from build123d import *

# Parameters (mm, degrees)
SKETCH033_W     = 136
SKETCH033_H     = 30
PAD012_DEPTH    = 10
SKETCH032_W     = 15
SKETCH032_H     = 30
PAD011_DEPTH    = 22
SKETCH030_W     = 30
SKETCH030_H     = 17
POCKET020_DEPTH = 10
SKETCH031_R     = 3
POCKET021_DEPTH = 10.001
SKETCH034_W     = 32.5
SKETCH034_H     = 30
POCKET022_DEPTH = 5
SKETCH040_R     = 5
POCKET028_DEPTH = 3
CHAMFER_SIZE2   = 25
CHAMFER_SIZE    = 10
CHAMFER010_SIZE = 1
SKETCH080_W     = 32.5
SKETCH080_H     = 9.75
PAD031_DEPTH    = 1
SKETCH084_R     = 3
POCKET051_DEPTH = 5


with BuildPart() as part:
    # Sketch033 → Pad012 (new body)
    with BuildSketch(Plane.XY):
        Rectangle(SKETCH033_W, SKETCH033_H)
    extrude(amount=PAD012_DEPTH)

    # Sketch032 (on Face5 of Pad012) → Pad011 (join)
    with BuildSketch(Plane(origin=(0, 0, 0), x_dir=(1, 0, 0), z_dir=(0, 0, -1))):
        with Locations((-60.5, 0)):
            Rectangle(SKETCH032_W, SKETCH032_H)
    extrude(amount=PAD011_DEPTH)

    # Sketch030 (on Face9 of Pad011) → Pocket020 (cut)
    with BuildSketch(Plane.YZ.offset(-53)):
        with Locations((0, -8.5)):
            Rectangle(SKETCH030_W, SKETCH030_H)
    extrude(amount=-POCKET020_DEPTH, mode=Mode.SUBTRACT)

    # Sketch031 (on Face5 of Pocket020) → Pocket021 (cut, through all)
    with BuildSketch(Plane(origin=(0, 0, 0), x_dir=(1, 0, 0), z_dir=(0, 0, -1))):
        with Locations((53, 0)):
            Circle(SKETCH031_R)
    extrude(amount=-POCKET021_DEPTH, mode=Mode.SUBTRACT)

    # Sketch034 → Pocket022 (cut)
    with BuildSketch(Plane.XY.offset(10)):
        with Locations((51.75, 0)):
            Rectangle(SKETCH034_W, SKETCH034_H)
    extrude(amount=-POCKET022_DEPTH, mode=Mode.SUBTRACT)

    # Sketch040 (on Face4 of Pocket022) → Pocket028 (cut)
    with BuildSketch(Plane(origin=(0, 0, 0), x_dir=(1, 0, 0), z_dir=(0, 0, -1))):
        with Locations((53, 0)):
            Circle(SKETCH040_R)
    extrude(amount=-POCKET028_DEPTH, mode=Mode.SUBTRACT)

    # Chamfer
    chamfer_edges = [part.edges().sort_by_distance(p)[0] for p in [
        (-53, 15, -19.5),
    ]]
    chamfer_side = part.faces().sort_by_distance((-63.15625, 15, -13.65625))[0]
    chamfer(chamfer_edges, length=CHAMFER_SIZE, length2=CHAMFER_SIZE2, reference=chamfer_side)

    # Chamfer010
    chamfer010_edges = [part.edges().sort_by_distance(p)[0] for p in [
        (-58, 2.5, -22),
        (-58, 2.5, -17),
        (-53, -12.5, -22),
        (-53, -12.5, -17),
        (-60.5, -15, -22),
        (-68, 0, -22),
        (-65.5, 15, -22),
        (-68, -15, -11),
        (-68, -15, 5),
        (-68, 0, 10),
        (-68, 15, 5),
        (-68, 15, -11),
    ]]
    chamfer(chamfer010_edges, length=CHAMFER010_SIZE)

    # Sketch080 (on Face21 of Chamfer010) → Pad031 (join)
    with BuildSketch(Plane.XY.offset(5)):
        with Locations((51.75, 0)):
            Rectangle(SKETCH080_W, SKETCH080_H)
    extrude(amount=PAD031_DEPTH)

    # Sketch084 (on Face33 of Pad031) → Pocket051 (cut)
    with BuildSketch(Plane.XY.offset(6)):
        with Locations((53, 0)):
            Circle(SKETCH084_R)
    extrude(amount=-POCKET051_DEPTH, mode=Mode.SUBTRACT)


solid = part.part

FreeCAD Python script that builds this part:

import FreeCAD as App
import Part
import Sketcher
from FreeCAD import Vector
Q = App.Units.Quantity


def edges_at(feature, points):
    """Names of the edges that pass closest to the given points."""
    edges = feature.Shape.Edges
    near = lambda p: min(range(len(edges)), key=lambda i: edges[i].distToShape(Part.Vertex(*p))[0])
    return sorted({f"Edge{near(p) + 1}" for p in points})

doc = App.newDocument("Part")
params = doc.addObject("Spreadsheet::Sheet", "Params")
for row, (alias, value) in enumerate([
    ("sketch1_width", "136 mm"),
    ("sketch1_height", "30 mm"),
    ("pad1_length", "10 mm"),
    ("sketch2_width", "15 mm"),
    ("sketch2_height", "30 mm"),
    ("pad2_length", "22 mm"),
    ("sketch3_width", "30 mm"),
    ("sketch3_height", "17 mm"),
    ("pocket1_length", "10 mm"),
    ("sketch4_diameter", "6 mm"),
    ("sketch5_height", "30 mm"),
    ("sketch5_width", "32.5 mm"),
    ("pocket3_length", "5 mm"),
    ("sketch6_diameter", "10 mm"),
    ("pocket4_length", "3 mm"),
    ("chamfer_size", "10 mm"),
    ("chamfer_size2", "25 mm"),
    ("chamfer2_size", "1 mm"),
    ("sketch7_width", "32.5 mm"),
    ("sketch7_height", "9.75 mm"),
    ("pad3_length", "1 mm"),
    ("sketch8_diameter", "6 mm"),
    ("pocket5_length", "5 mm"),
], start=1):
    params.set(f"A{row}", alias)
    params.set(f"B{row}", "=" + value)
    params.setAlias(f"B{row}", alias)

body = doc.addObject("PartDesign::Body", "Body")

# Sketch on XY plane
sketch1 = body.newObject("Sketcher::SketchObject", "Sketch")
sketch1.AttachmentSupport = (doc.getObject("XY_Plane"), [""])
sketch1.MapMode = "FlatFace"
sketch1.addGeometry([
    Part.LineSegment(Vector(-68, 15, 0), Vector(-68, -15, 0)),
    Part.LineSegment(Vector(-68, -15, 0), Vector(68, -15, 0)),
    Part.LineSegment(Vector(68, -15, 0), Vector(68, 15, 0)),
    Part.LineSegment(Vector(68, 15, 0), Vector(-68, 15, 0)),
], False)
sketch1.addConstraint([
    Sketcher.Constraint("Coincident", 0, 2, 1, 1),
    Sketcher.Constraint("Coincident", 1, 2, 2, 1),
    Sketcher.Constraint("Coincident", 2, 2, 3, 1),
    Sketcher.Constraint("Coincident", 3, 2, 0, 1),
    Sketcher.Constraint("Vertical", 0),
    Sketcher.Constraint("Horizontal", 1),
    Sketcher.Constraint("Vertical", 2),
    Sketcher.Constraint("Horizontal", 3),
    Sketcher.Constraint("Symmetric", 0, 2, 2, 2, -1, 1),
    Sketcher.Constraint("DistanceX", 1, 1, 1, 2, Q("136 mm")),
    Sketcher.Constraint("DistanceY", 0, 2, 0, 1, Q("30 mm")),
])
sketch1.setExpression("Constraints[9]", "Params.sketch1_width")
sketch1.setExpression("Constraints[10]", "Params.sketch1_height")
pad1 = body.newObject("PartDesign::Pad", "Pad")
pad1.Profile = sketch1
pad1.setExpression("Length", "Params.pad1_length")

# Sketch on XY plane
sketch2 = body.newObject("Sketcher::SketchObject", "Sketch001")
sketch2.AttachmentSupport = (doc.getObject("XY_Plane"), [""])
sketch2.MapMode = "FlatFace"
sketch2.addGeometry([
    Part.LineSegment(Vector(-68, -15, 0), Vector(-68, 15, 0)),
    Part.LineSegment(Vector(-68, 15, 0), Vector(-53, 15, 0)),
    Part.LineSegment(Vector(-53, 15, 0), Vector(-53, -15, 0)),
    Part.LineSegment(Vector(-53, -15, 0), Vector(-68, -15, 0)),
], False)
sketch2.addConstraint([
    Sketcher.Constraint("Coincident", 0, 2, 1, 1),
    Sketcher.Constraint("Coincident", 1, 2, 2, 1),
    Sketcher.Constraint("Coincident", 2, 2, 3, 1),
    Sketcher.Constraint("Coincident", 3, 2, 0, 1),
    Sketcher.Constraint("Vertical", 0),
    Sketcher.Constraint("Horizontal", 1),
    Sketcher.Constraint("Vertical", 2),
    Sketcher.Constraint("Horizontal", 3),
    Sketcher.Constraint("DistanceX", 1, 1, 1, 2, Q("15 mm")),
    Sketcher.Constraint("DistanceY", 0, 1, 0, 2, Q("30 mm")),
    Sketcher.Constraint("DistanceX", 0, 2, -1, 1, Q("68 mm")),
    Sketcher.Constraint("DistanceY", -1, 1, 0, 2, Q("15 mm")),
])
sketch2.setExpression("Constraints[8]", "Params.sketch2_width")
sketch2.setExpression("Constraints[9]", "Params.sketch2_height")
pad2 = body.newObject("PartDesign::Pad", "Pad001")
pad2.Profile = sketch2
pad2.setExpression("Length", "Params.pad2_length")
pad2.Reversed = True

# Sketch on YZ plane
sketch3 = body.newObject("Sketcher::SketchObject", "Sketch002")
sketch3.AttachmentSupport = (doc.getObject("YZ_Plane"), [""])
sketch3.MapMode = "FlatFace"
sketch3.AttachmentOffset = App.Placement(Vector(0, 0, -53), App.Rotation())
sketch3.addGeometry([
    Part.LineSegment(Vector(-15, 0, 0), Vector(-15, -17, 0)),
    Part.LineSegment(Vector(-15, -17, 0), Vector(15, -17, 0)),
    Part.LineSegment(Vector(15, -17, 0), Vector(15, 0, 0)),
    Part.LineSegment(Vector(15, 0, 0), Vector(-15, 0, 0)),
], False)
sketch3.addConstraint([
    Sketcher.Constraint("Coincident", 0, 2, 1, 1),
    Sketcher.Constraint("Coincident", 1, 2, 2, 1),
    Sketcher.Constraint("Coincident", 2, 2, 3, 1),
    Sketcher.Constraint("Coincident", 3, 2, 0, 1),
    Sketcher.Constraint("Vertical", 0),
    Sketcher.Constraint("Horizontal", 1),
    Sketcher.Constraint("Vertical", 2),
    Sketcher.Constraint("Horizontal", 3),
    Sketcher.Constraint("Symmetric", 2, 2, 3, 2, -1, 1),
    Sketcher.Constraint("DistanceX", 1, 1, 1, 2, Q("30 mm")),
    Sketcher.Constraint("DistanceY", 0, 2, 0, 1, Q("17 mm")),
])
sketch3.setExpression("Constraints[9]", "Params.sketch3_width")
sketch3.setExpression("Constraints[10]", "Params.sketch3_height")
pocket1 = body.newObject("PartDesign::Pocket", "Pocket")
pocket1.Profile = sketch3
pocket1.setExpression("Length", "Params.pocket1_length")

# Sketch on XY plane
sketch4 = body.newObject("Sketcher::SketchObject", "Sketch003")
sketch4.AttachmentSupport = (doc.getObject("XY_Plane"), [""])
sketch4.MapMode = "FlatFace"
sketch4.addGeometry(Part.Circle(Vector(53, 0, 0), Vector(0, 0, 1), 3), False)
sketch4.addConstraint([
    Sketcher.Constraint("PointOnObject", 0, 3, -1),
    Sketcher.Constraint("Diameter", 0, Q("6 mm")),
    Sketcher.Constraint("DistanceX", -1, 1, 0, 3, Q("53 mm")),
])
sketch4.setExpression("Constraints[1]", "Params.sketch4_diameter")
pocket2 = body.newObject("PartDesign::Pocket", "Pocket001")
pocket2.Profile = sketch4
pocket2.Type = "ThroughAll"
pocket2.Reversed = True

# Sketch on XY plane
sketch5 = body.newObject("Sketcher::SketchObject", "Sketch004")
sketch5.AttachmentSupport = (doc.getObject("XY_Plane"), [""])
sketch5.MapMode = "FlatFace"
sketch5.AttachmentOffset = App.Placement(Vector(0, 0, 10), App.Rotation())
sketch5.addGeometry([
    Part.LineSegment(Vector(36, 15, 0), Vector(36, -15, 0)),
    Part.LineSegment(Vector(36, -15, 0), Vector(68, -15, 0)),
    Part.LineSegment(Vector(68, -15, 0), Vector(68, 15, 0)),
    Part.LineSegment(Vector(68, 15, 0), Vector(36, 15, 0)),
], False)
sketch5.addConstraint([
    Sketcher.Constraint("Coincident", 0, 2, 1, 1),
    Sketcher.Constraint("Coincident", 1, 2, 2, 1),
    Sketcher.Constraint("Coincident", 2, 2, 3, 1),
    Sketcher.Constraint("Coincident", 3, 2, 0, 1),
    Sketcher.Constraint("Vertical", 0),
    Sketcher.Constraint("Horizontal", 1),
    Sketcher.Constraint("Vertical", 2),
    Sketcher.Constraint("Horizontal", 3),
    Sketcher.Constraint("DistanceY", 0, 2, 0, 1, Q("30 mm")),
    Sketcher.Constraint("DistanceX", 1, 1, 1, 2, Q("32.5 mm")),
    Sketcher.Constraint("DistanceY", 0, 2, -1, 1, Q("15 mm")),
    Sketcher.Constraint("DistanceX", -1, 1, 1, 2, Q("68 mm")),
])
sketch5.setExpression("Constraints[8]", "Params.sketch5_height")
sketch5.setExpression("Constraints[9]", "Params.sketch5_width")
pocket3 = body.newObject("PartDesign::Pocket", "Pocket002")
pocket3.Profile = sketch5
pocket3.setExpression("Length", "Params.pocket3_length")

# Sketch on XY plane
sketch6 = body.newObject("Sketcher::SketchObject", "Sketch005")
sketch6.AttachmentSupport = (doc.getObject("XY_Plane"), [""])
sketch6.MapMode = "FlatFace"
sketch6.addGeometry(Part.Circle(Vector(53, 0, 0), Vector(0, 0, 1), 5), False)
sketch6.addConstraint([
    Sketcher.Constraint("PointOnObject", 0, 3, -1),
    Sketcher.Constraint("Diameter", 0, Q("10 mm")),
    Sketcher.Constraint("DistanceX", -1, 1, 0, 3, Q("53 mm")),
])
sketch6.setExpression("Constraints[1]", "Params.sketch6_diameter")
pocket4 = body.newObject("PartDesign::Pocket", "Pocket003")
pocket4.Profile = sketch6
pocket4.setExpression("Length", "Params.pocket4_length")
pocket4.Reversed = True
doc.recompute()

chamfer = body.newObject("PartDesign::Chamfer", "Chamfer")
chamfer.Base = (pocket4, edges_at(pocket4, [(-53, 15, -19.5)]))
chamfer.ChamferType = "Two distances"
chamfer.setExpression("Size", "Params.chamfer_size")
chamfer.setExpression("Size2", "Params.chamfer_size2")
doc.recompute()

chamfer2 = body.newObject("PartDesign::Chamfer", "Chamfer001")
chamfer2.Base = (chamfer, edges_at(chamfer, [
    (-58, 2.5, -22),
    (-58, 2.5, -17),
    (-53, -12.5, -22),
    (-53, -12.5, -17),
    (-60.5, -15, -22),
    (-68, 0, -22),
    (-65.5, 15, -22),
    (-68, -15, -6),
    (-68, -15, -6),
    (-68, 0, 10),
    (-68, 15, -6),
    (-68, 15, -6),
]))
chamfer2.setExpression("Size", "Params.chamfer2_size")

# Sketch on XY plane
sketch7 = body.newObject("Sketcher::SketchObject", "Sketch006")
sketch7.AttachmentSupport = (doc.getObject("XY_Plane"), [""])
sketch7.MapMode = "FlatFace"
sketch7.AttachmentOffset = App.Placement(Vector(0, 0, 5), App.Rotation())
sketch7.addGeometry([
    Part.LineSegment(Vector(36, 5, 0), Vector(36, -5, 0)),
    Part.LineSegment(Vector(36, -5, 0), Vector(68, -5, 0)),
    Part.LineSegment(Vector(68, -5, 0), Vector(68, 5, 0)),
    Part.LineSegment(Vector(68, 5, 0), Vector(36, 5, 0)),
], False)
sketch7.addConstraint([
    Sketcher.Constraint("Coincident", 0, 2, 1, 1),
    Sketcher.Constraint("Coincident", 1, 2, 2, 1),
    Sketcher.Constraint("Coincident", 2, 2, 3, 1),
    Sketcher.Constraint("Coincident", 3, 2, 0, 1),
    Sketcher.Constraint("Vertical", 0),
    Sketcher.Constraint("Horizontal", 1),
    Sketcher.Constraint("Vertical", 2),
    Sketcher.Constraint("Horizontal", 3),
    Sketcher.Constraint("DistanceX", 1, 1, 1, 2, Q("32.5 mm")),
    Sketcher.Constraint("DistanceX", -1, 1, 1, 2, Q("68 mm")),
    Sketcher.Constraint("DistanceY", 0, 2, 0, 1, Q("9.75 mm")),
    Sketcher.Constraint("DistanceY", 0, 2, -1, 1, Q("4.875 mm")),
])
sketch7.setExpression("Constraints[8]", "Params.sketch7_width")
sketch7.setExpression("Constraints[10]", "Params.sketch7_height")
pad3 = body.newObject("PartDesign::Pad", "Pad002")
pad3.Profile = sketch7
pad3.setExpression("Length", "Params.pad3_length")

# Sketch on XY plane
sketch8 = body.newObject("Sketcher::SketchObject", "Sketch007")
sketch8.AttachmentSupport = (doc.getObject("XY_Plane"), [""])
sketch8.MapMode = "FlatFace"
sketch8.AttachmentOffset = App.Placement(Vector(0, 0, 6), App.Rotation())
sketch8.addGeometry(Part.Circle(Vector(53, 0, 0), Vector(0, 0, 1), 3), False)
sketch8.addConstraint([
    Sketcher.Constraint("PointOnObject", 0, 3, -1),
    Sketcher.Constraint("Diameter", 0, Q("6 mm")),
    Sketcher.Constraint("DistanceX", -1, 1, 0, 3, Q("53 mm")),
])
sketch8.setExpression("Constraints[1]", "Params.sketch8_diameter")
pocket5 = body.newObject("PartDesign::Pocket", "Pocket004")
pocket5.Profile = sketch8
pocket5.setExpression("Length", "Params.pocket5_length")

doc.recompute()
